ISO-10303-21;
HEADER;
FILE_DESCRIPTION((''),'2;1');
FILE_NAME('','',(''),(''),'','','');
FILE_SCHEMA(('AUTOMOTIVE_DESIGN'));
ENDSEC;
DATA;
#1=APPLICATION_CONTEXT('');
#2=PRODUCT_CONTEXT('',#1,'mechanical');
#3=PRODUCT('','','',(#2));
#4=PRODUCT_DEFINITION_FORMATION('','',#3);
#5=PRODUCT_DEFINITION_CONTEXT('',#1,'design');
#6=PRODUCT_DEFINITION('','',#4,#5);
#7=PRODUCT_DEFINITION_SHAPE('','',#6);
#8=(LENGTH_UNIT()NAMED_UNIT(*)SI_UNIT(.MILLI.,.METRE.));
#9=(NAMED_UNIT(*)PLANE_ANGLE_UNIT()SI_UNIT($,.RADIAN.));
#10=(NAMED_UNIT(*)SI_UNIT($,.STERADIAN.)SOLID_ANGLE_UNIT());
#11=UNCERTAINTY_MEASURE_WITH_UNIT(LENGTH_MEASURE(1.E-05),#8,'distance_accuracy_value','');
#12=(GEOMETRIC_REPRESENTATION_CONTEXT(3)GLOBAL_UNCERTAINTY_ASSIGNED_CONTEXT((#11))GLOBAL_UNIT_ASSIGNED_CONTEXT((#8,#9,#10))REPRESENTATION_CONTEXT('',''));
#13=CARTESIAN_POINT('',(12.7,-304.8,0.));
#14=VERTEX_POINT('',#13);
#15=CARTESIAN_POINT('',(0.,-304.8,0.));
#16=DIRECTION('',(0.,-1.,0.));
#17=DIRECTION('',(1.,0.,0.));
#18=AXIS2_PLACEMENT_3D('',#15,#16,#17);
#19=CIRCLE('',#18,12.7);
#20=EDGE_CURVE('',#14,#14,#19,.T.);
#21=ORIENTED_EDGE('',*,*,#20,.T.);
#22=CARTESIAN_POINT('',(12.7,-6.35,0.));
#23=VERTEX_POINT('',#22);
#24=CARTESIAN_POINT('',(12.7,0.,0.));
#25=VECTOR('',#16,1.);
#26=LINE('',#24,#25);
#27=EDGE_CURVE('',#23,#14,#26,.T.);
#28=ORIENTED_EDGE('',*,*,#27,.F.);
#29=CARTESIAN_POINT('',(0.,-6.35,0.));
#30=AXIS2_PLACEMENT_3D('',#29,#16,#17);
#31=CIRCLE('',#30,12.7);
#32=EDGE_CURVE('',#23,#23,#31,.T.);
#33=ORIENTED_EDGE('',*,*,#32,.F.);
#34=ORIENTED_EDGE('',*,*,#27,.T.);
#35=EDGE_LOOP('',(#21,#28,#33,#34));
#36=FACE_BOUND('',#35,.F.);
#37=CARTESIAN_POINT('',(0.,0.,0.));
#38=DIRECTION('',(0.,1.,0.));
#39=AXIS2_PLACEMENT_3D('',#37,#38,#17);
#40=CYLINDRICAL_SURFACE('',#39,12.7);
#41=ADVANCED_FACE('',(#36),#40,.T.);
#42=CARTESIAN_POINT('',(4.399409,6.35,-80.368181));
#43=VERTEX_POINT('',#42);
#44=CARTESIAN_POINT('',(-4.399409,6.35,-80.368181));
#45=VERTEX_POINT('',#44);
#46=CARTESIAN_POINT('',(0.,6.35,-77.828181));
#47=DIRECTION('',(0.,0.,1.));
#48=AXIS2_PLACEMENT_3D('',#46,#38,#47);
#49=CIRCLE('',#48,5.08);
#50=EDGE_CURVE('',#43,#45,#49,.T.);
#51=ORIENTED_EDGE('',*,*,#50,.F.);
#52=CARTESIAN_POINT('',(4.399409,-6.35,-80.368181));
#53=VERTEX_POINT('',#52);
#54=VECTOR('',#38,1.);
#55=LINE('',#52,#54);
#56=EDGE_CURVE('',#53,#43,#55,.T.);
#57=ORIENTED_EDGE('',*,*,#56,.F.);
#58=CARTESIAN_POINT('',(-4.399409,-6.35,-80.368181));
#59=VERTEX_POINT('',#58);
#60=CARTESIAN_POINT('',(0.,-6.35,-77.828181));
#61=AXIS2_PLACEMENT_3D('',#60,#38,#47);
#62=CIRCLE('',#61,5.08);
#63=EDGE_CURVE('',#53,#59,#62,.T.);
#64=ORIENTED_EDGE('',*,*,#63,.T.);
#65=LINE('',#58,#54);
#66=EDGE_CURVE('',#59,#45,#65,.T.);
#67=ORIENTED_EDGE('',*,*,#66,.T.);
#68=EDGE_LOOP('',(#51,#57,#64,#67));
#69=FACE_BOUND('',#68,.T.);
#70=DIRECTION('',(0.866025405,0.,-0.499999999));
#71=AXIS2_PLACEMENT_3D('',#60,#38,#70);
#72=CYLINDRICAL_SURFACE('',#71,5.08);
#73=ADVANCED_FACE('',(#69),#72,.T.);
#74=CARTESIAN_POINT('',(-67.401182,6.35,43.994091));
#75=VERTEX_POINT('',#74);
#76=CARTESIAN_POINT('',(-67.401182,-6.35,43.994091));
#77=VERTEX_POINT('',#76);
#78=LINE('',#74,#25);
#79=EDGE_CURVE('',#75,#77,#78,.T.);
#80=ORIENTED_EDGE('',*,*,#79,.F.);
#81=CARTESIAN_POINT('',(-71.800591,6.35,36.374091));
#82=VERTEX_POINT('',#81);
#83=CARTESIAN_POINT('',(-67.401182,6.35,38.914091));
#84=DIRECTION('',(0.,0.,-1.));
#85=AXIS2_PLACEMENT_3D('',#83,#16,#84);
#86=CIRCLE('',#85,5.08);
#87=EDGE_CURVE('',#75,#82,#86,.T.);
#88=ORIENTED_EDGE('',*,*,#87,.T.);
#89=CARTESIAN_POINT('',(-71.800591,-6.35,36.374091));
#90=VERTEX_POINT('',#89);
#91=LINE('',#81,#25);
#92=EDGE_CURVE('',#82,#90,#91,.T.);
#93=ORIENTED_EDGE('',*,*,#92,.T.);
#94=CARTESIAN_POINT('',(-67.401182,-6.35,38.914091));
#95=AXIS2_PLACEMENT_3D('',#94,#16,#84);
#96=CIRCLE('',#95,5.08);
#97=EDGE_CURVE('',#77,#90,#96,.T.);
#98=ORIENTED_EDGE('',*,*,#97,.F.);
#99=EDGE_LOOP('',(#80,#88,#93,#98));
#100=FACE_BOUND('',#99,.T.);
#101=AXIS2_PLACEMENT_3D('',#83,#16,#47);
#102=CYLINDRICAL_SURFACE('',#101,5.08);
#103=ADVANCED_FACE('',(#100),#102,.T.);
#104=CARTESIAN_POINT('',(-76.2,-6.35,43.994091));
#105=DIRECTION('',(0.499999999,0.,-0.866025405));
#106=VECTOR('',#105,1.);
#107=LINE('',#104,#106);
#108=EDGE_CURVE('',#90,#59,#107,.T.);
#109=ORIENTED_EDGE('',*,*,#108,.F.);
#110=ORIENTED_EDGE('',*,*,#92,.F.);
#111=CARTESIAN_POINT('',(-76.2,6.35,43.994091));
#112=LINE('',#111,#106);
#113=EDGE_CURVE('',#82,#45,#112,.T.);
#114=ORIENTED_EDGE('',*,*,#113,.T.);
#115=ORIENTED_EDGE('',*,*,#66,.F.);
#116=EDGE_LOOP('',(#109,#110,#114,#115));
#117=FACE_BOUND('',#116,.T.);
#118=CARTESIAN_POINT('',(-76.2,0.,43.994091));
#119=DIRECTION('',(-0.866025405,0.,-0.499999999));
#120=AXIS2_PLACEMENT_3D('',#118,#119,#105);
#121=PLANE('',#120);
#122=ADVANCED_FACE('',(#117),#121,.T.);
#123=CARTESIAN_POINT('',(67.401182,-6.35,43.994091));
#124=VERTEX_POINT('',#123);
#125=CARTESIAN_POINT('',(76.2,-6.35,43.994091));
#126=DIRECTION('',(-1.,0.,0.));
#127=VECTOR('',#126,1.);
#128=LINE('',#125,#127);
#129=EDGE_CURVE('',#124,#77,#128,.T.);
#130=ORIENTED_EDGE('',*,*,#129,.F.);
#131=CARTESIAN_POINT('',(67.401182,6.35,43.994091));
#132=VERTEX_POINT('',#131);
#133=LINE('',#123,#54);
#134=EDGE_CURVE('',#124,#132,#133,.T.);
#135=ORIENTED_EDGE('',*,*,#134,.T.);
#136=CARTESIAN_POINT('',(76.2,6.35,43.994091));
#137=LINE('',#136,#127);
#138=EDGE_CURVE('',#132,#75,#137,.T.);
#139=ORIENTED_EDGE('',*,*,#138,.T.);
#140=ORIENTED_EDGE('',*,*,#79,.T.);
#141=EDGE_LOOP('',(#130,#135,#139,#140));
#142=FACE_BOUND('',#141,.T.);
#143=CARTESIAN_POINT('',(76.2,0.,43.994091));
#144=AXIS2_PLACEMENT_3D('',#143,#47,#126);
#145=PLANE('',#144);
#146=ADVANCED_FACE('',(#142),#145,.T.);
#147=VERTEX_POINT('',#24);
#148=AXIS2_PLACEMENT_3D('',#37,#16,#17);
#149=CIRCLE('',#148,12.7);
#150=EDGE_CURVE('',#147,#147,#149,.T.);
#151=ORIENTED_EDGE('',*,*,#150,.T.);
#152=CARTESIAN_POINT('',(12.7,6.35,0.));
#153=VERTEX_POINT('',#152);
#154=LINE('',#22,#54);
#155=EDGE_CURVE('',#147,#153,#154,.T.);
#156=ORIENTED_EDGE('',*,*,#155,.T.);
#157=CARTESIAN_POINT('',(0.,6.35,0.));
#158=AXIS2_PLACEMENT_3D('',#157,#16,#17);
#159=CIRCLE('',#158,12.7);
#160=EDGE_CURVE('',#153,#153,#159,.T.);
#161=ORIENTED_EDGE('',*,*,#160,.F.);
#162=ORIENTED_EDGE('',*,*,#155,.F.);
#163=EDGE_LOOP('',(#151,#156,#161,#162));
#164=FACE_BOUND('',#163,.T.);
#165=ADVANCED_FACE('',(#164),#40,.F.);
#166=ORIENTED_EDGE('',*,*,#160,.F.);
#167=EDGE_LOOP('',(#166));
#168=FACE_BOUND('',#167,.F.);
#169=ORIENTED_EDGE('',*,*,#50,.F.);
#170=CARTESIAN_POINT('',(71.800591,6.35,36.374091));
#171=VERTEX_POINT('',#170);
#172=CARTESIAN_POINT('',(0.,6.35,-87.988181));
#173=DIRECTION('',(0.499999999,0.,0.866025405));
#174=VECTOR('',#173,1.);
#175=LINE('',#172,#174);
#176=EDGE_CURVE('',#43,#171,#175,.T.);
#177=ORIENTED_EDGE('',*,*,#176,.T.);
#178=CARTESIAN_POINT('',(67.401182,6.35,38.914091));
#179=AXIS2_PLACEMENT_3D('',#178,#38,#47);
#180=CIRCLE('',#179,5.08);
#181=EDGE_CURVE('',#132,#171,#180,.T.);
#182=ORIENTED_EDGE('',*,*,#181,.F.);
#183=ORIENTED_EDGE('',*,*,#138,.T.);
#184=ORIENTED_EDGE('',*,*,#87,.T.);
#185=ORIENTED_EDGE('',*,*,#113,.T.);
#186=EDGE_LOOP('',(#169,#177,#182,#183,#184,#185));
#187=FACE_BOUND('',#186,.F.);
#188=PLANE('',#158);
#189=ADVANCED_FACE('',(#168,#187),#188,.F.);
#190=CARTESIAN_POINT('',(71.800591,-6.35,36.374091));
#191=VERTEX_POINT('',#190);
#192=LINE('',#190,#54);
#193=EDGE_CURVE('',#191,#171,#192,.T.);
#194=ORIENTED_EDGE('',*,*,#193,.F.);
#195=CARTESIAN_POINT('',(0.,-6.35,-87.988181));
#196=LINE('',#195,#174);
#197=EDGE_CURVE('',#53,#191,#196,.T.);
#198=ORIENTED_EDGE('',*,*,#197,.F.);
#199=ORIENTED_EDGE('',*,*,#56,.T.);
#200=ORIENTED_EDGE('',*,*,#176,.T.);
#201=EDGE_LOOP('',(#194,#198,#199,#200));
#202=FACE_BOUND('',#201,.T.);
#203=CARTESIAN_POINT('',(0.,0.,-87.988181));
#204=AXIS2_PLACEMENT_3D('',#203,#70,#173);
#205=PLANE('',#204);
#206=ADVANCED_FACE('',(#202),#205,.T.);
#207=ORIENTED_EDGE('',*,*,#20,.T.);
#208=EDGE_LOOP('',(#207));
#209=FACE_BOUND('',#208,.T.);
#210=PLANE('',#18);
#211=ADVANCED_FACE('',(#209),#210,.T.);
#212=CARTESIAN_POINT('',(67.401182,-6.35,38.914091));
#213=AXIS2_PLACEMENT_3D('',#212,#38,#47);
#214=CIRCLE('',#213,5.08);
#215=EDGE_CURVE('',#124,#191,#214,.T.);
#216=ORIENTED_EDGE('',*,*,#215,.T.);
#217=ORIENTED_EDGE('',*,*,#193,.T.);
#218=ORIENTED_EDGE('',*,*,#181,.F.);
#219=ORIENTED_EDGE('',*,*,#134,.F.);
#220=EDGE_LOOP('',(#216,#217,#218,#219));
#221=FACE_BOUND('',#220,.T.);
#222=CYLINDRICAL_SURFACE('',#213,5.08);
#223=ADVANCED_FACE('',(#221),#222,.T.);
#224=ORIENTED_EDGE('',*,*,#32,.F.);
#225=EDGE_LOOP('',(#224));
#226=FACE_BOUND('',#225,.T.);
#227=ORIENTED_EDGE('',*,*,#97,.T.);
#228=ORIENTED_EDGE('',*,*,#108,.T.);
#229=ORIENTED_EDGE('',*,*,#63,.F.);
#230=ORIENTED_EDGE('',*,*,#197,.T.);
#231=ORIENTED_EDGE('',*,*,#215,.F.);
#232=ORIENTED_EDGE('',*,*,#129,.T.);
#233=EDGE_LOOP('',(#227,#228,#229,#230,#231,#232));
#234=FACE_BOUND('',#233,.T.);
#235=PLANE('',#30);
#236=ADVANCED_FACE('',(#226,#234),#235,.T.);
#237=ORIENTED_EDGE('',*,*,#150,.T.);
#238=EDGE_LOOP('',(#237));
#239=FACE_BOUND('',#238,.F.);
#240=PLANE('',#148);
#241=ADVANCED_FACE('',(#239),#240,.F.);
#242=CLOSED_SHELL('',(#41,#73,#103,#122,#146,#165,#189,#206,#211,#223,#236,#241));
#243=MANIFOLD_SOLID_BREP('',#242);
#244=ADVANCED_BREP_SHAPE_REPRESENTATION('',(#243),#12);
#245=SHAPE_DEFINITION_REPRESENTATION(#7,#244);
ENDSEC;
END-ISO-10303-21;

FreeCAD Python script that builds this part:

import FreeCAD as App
import Part
import Sketcher
from FreeCAD import Vector
Q = App.Units.Quantity


def edges_at(feature, points):
    """Names of the edges that pass closest to the given points."""
    edges = feature.Shape.Edges
    near = lambda p: min(range(len(edges)), key=lambda i: edges[i].distToShape(Part.Vertex(*p))[0])
    return sorted({f"Edge{near(p) + 1}" for p in points})


def add_polygon(sketch, points):
    """Adds a closed chain of lines whose ends are joined by coincident constraints."""
    first, n = sketch.GeometryCount, len(points)
    for a, b in zip(points, points[1:] + points[:1]):
        sketch.addGeometry(Part.LineSegment(App.Vector(*a, 0), App.Vector(*b, 0)), False)
    for i in range(n):
        sketch.addConstraint(Sketcher.Constraint("Coincident", first + i, 2, first + (i + 1) % n, 1))

doc = App.newDocument("Part")
body = doc.addObject("PartDesign::Body", "Body")

sketch1 = body.newObject("Sketcher::SketchObject", "Sketch")
sketch1.AttachmentSupport = (doc.getObject("XZ_Plane"), [""])
sketch1.MapMode = "FlatFace"
add_polygon(sketch1, [(76.2, 43.994091), (-76.2, 43.994091), (0, -87.988181)])
sketch1.addGeometry(Part.Circle(Vector(0, 0, 0), Vector(0, 0, 1), 12.7), False)
sketch1.addConstraint(Sketcher.Constraint("Horizontal", 0))
sketch1.addConstraint(Sketcher.Constraint("Coincident", 3, 3, -1, 1))
sketch1.addConstraint(Sketcher.Constraint("PointOnObject", 1, 2, -2))
sketch1.addConstraint(Sketcher.Constraint("Equal", 1, 2))
sketch1.addConstraint(Sketcher.Constraint("Diameter", 3, Q("1 in")))
sketch1.addConstraint(Sketcher.Constraint("DistanceX", 0, 2, 0, 1, Q("6 in")))
sketch1.addConstraint(Sketcher.Constraint("Distance", 1, Q("6 in")))
sketch1.addConstraint(Sketcher.Constraint("DistanceY", -1, 1, 0, 2, 43.994091))
pad1 = body.newObject("PartDesign::Pad", "Pad")
pad1.Profile = sketch1
pad1.Length = Q("0.5 in")
pad1.Midplane = True
doc.recompute()

fillet = body.newObject("PartDesign::Fillet", "Fillet")
fillet.Base = (pad1, edges_at(pad1, [(0, 0, -87.988), (76.2, 0, 43.994), (-76.2, 0, 43.994)]))
fillet.Radius = Q("0.2 in")

sketch2 = body.newObject("Sketcher::SketchObject", "Sketch001")
sketch2.AttachmentSupport = (doc.getObject("XZ_Plane"), [""])
sketch2.MapMode = "FlatFace"
sketch2.addGeometry(Part.Circle(Vector(0, 0, 0), Vector(0, 0, 1), 12.7), False)
sketch2.addConstraint(Sketcher.Constraint("Coincident", 0, 3, -1, 1))
sketch2.addConstraint(Sketcher.Constraint("Diameter", 0, Q("1 in")))
pad2 = body.newObject("PartDesign::Pad", "Pad001")
pad2.Profile = sketch2
pad2.Length = Q("12 in")

doc.recompute()
